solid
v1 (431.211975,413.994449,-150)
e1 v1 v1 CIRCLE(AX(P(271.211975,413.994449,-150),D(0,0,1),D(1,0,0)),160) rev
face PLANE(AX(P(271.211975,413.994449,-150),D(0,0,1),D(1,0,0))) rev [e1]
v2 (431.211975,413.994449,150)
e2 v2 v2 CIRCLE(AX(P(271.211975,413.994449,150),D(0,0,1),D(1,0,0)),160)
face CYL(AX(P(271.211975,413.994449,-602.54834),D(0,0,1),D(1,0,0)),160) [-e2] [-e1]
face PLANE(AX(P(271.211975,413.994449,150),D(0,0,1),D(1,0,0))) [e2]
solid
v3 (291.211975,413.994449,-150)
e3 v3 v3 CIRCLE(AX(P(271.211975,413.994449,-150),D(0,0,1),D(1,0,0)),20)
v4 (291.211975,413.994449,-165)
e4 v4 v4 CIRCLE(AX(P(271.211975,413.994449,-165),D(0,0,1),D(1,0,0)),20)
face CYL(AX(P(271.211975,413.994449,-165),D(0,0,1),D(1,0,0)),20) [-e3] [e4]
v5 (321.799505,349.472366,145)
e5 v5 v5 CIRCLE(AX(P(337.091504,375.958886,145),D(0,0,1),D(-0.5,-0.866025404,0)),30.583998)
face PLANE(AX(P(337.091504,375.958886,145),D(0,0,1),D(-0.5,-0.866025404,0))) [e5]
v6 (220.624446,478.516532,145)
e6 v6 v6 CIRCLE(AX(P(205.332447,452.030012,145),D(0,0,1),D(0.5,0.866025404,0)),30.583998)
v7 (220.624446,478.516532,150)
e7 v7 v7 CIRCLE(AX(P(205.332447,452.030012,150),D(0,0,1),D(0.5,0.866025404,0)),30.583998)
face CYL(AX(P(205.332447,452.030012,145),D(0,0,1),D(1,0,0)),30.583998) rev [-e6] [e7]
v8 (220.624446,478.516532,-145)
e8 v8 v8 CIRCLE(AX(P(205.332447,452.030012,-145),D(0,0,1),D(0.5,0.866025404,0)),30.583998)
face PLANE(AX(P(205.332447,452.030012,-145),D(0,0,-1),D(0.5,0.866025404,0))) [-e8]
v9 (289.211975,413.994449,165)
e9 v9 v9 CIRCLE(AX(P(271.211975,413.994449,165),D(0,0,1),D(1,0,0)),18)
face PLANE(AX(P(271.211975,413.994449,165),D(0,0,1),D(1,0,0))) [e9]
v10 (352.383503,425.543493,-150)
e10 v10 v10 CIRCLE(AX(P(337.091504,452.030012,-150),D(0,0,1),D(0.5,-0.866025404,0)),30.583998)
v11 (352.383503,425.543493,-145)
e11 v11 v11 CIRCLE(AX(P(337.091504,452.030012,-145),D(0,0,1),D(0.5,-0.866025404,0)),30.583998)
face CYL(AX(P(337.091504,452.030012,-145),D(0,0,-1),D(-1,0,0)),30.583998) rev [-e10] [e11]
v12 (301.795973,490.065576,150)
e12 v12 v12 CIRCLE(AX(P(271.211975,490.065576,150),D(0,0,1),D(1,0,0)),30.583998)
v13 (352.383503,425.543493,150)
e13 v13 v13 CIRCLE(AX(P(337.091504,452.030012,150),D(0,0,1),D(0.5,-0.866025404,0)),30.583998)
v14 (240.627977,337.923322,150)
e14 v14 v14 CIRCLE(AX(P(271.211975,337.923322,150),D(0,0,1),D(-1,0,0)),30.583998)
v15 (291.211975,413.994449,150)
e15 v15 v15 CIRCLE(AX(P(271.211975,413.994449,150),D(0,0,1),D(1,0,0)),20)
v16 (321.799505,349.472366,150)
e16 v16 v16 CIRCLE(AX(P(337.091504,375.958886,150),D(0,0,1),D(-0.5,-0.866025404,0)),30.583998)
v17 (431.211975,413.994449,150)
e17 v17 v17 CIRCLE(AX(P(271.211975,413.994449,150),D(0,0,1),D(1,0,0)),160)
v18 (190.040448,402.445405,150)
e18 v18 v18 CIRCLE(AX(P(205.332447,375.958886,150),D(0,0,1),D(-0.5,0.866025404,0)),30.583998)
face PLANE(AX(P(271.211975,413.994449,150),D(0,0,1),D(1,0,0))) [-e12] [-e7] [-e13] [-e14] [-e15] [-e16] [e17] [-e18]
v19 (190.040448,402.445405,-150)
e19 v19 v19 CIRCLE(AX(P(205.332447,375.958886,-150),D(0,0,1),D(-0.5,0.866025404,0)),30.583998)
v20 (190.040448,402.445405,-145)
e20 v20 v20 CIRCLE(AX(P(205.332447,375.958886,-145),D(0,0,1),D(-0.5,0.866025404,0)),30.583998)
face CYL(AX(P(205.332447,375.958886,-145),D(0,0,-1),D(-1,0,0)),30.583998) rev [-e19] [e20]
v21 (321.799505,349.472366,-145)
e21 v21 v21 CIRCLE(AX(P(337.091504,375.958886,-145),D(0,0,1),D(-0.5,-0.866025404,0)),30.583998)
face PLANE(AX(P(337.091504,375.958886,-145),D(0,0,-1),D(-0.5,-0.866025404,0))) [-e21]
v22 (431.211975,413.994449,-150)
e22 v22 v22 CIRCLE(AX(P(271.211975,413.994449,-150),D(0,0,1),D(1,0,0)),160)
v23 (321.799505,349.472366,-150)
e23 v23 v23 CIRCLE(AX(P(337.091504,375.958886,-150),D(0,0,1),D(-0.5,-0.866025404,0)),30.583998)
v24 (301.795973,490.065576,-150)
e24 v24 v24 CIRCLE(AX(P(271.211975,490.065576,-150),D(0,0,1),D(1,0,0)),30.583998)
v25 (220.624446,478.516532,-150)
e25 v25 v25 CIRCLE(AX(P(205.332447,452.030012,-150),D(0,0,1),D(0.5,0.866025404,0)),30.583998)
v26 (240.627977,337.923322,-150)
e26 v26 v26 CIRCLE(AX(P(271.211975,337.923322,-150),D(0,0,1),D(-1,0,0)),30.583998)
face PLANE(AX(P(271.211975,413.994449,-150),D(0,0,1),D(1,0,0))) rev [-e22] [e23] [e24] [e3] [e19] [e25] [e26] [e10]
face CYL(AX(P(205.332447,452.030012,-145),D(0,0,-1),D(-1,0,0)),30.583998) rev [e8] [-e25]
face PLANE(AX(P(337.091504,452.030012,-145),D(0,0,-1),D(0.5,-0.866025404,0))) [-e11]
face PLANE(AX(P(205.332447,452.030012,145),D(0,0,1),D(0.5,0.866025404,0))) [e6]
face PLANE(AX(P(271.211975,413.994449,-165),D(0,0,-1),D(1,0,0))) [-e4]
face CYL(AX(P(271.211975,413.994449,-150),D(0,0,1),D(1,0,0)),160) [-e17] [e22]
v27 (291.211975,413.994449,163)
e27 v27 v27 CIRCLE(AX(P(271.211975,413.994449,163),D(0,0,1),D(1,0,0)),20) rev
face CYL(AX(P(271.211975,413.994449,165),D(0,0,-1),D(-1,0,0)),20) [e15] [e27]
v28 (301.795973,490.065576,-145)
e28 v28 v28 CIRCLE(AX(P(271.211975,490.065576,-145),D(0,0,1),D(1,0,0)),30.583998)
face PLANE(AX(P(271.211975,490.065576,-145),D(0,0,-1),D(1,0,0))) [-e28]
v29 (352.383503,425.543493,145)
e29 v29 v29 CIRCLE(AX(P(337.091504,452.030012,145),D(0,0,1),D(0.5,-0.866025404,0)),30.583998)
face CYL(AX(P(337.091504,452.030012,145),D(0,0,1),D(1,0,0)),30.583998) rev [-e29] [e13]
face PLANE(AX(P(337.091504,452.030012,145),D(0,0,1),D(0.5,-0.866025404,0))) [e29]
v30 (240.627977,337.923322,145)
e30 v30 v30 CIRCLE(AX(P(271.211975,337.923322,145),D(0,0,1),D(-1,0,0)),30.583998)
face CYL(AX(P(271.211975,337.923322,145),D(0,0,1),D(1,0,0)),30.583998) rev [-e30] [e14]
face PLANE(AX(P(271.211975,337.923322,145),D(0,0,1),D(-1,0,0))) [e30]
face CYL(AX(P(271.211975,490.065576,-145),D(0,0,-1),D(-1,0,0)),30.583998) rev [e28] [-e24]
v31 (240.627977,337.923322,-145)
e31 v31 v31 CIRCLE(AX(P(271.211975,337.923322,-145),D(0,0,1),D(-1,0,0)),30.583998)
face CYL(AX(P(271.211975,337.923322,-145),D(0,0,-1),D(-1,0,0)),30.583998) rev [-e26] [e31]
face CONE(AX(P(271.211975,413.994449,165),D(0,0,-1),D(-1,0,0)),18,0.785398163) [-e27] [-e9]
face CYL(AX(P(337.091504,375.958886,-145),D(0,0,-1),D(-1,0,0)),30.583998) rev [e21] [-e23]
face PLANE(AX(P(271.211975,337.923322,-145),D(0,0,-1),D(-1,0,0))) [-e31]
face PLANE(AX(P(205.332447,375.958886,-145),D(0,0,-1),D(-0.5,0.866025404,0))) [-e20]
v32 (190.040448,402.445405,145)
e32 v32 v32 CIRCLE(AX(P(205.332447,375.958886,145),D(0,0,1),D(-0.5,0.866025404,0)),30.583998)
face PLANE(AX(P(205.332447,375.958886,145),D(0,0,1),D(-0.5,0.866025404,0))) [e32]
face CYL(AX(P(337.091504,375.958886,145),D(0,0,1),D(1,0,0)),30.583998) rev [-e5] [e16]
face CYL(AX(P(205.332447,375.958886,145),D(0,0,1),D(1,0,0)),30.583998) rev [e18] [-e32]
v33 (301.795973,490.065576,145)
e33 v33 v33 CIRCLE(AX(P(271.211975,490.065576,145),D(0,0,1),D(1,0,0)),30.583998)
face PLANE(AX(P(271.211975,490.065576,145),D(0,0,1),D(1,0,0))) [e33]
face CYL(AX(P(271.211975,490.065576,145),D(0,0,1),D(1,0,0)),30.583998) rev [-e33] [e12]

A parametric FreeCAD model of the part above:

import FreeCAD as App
import Part
import Sketcher


def edges_at(feature, points):
    """Names of the edges that pass closest to the given points."""
    edges = feature.Shape.Edges
    near = lambda p: min(range(len(edges)), key=lambda i: edges[i].distToShape(Part.Vertex(*p))[0])
    return sorted({f"Edge{near(p) + 1}" for p in points})

doc = App.newDocument("Part")
params = doc.addObject("Spreadsheet::Sheet", "Params")
for row, (alias, value) in enumerate([
    ("sketch1_diameter", "320 mm"),
    ("pad1_length", "300 mm"),
    ("pocket1_length", "5 mm"),
    ("pocket2_length", "5 mm"),
    ("pocket3_length", "5 mm"),
    ("pocket4_length", "5 mm"),
    ("pocket5_length", "5 mm"),
    ("pocket6_length", "5 mm"),
    ("sketch8_diameter", "40 mm"),
    ("pad2_length", "15 mm"),
    ("chamfer_size", "2 mm"),
    ("sketch9_diameter", "320 mm"),
    ("pad3_length", "300 mm"),
], start=1):
    params.set(f"A{row}", alias)
    params.set(f"B{row}", "=" + value)
    params.setAlias(f"B{row}", alias)

body = doc.addObject("PartDesign::Body", "Body")

# Sketch on XY plane
sketch1 = body.newObject("Sketcher::SketchObject", "Sketch")
sketch1.AttachmentSupport = (doc.getObject("XY_Plane"), [""])
sketch1.MapMode = "FlatFace"
sketch1.addGeometry(Part.Circle(App.Vector(271, 414, 0), App.Vector(0, 0, 1), 160), False)
sketch1.addConstraint(Sketcher.Constraint("Diameter", 0, 320.0))
sketch1.addConstraint(Sketcher.Constraint("DistanceY", -1, 1, 0, 3, 413.994449))
sketch1.addConstraint(Sketcher.Constraint("DistanceX", -1, 1, 0, 3, 271.211975))
sketch1.setExpression("Constraints[0]", "Params.sketch1_diameter")
pad1 = body.newObject("PartDesign::Pad", "Pad")
pad1.Profile = sketch1
pad1.setExpression("Length", "Params.pad1_length")
pad1.Midplane = True

# Sketch on XY plane
sketch2 = body.newObject("Sketcher::SketchObject", "Sketch001")
sketch2.AttachmentSupport = (doc.getObject("XY_Plane"), [""])
sketch2.MapMode = "FlatFace"
sketch2.AttachmentOffset = App.Placement(App.Vector(0, 0, 150), App.Rotation())
sketch2.addGeometry(Part.Circle(App.Vector(271, 490, 0), App.Vector(0, 0, 1), 31), False)
sketch2.addConstraint(Sketcher.Constraint("Diameter", 0, 61.167996))
sketch2.addConstraint(Sketcher.Constraint("DistanceX", -1, 1, 0, 3, 271.211975))
sketch2.addConstraint(Sketcher.Constraint("DistanceY", -1, 1, 0, 3, 490.065576))
pocket1 = body.newObject("PartDesign::Pocket", "Pocket")
pocket1.Profile = sketch2
pocket1.setExpression("Length", "Params.pocket1_length")
doc.recompute()

datumline = body.newObject("PartDesign::Line", "DatumLine")
datumline.Placement = App.Placement(App.Vector(271.211975, 413.994449, 0), App.Rotation(App.Vector(0, 0, 1), App.Vector(0, 0, 1)))
polarpattern = body.newObject("PartDesign::PolarPattern", "PolarPattern")
polarpattern.Originals = [pocket1]
polarpattern.Axis = (datumline, [""])
polarpattern.Angle = 360
polarpattern.Occurrences = 6
body.Tip = polarpattern
doc.recompute()

mirrored = body.newObject("PartDesign::Mirrored", "Mirrored")
mirrored.Originals = [pocket1]
mirrored.MirrorPlane = (doc.getObject("XY_Plane"), [""])
body.Tip = mirrored

# Sketch on XY plane
sketch3 = body.newObject("Sketcher::SketchObject", "Sketch002")
sketch3.AttachmentSupport = (doc.getObject("XY_Plane"), [""])
sketch3.MapMode = "FlatFace"
sketch3.AttachmentOffset = App.Placement(App.Vector(0, 0, -150), App.Rotation())
sketch3.addGeometry(Part.Circle(App.Vector(205, 452, 0), App.Vector(0, 0, 1), 31), False)
sketch3.addConstraint(Sketcher.Constraint("Diameter", 0, 61.167996))
sketch3.addConstraint(Sketcher.Constraint("DistanceX", -1, 1, 0, 3, 205.332447))
sketch3.addConstraint(Sketcher.Constraint("DistanceY", -1, 1, 0, 3, 452.030013))
pocket2 = body.newObject("PartDesign::Pocket", "Pocket001")
pocket2.Profile = sketch3
pocket2.setExpression("Length", "Params.pocket2_length")
pocket2.Reversed = True

# Sketch on XY plane
sketch4 = body.newObject("Sketcher::SketchObject", "Sketch003")
sketch4.AttachmentSupport = (doc.getObject("XY_Plane"), [""])
sketch4.MapMode = "FlatFace"
sketch4.AttachmentOffset = App.Placement(App.Vector(0, 0, -150), App.Rotation())
sketch4.addGeometry(Part.Circle(App.Vector(205, 376, 0), App.Vector(0, 0, 1), 31), False)
sketch4.addConstraint(Sketcher.Constraint("Diameter", 0, 61.167996))
sketch4.addConstraint(Sketcher.Constraint("DistanceX", -1, 1, 0, 3, 205.332447))
sketch4.addConstraint(Sketcher.Constraint("DistanceY", -1, 1, 0, 3, 375.958886))
pocket3 = body.newObject("PartDesign::Pocket", "Pocket002")
pocket3.Profile = sketch4
pocket3.setExpression("Length", "Params.pocket3_length")
pocket3.Reversed = True

# Sketch on XY plane
sketch5 = body.newObject("Sketcher::SketchObject", "Sketch004")
sketch5.AttachmentSupport = (doc.getObject("XY_Plane"), [""])
sketch5.MapMode = "FlatFace"
sketch5.AttachmentOffset = App.Placement(App.Vector(0, 0, -150), App.Rotation())
sketch5.addGeometry(Part.Circle(App.Vector(271, 338, 0), App.Vector(0, 0, 1), 31), False)
sketch5.addConstraint(Sketcher.Constraint("Diameter", 0, 61.167996))
sketch5.addConstraint(Sketcher.Constraint("DistanceX", -1, 1, 0, 3, 271.211975))
sketch5.addConstraint(Sketcher.Constraint("DistanceY", -1, 1, 0, 3, 337.923322))
pocket4 = body.newObject("PartDesign::Pocket", "Pocket003")
pocket4.Profile = sketch5
pocket4.setExpression("Length", "Params.pocket4_length")
pocket4.Reversed = True

# Sketch on XY plane
sketch6 = body.newObject("Sketcher::SketchObject", "Sketch005")
sketch6.AttachmentSupport = (doc.getObject("XY_Plane"), [""])
sketch6.MapMode = "FlatFace"
sketch6.AttachmentOffset = App.Placement(App.Vector(0, 0, -150), App.Rotation())
sketch6.addGeometry(Part.Circle(App.Vector(337, 376, 0), App.Vector(0, 0, 1), 31), False)
sketch6.addConstraint(Sketcher.Constraint("Diameter", 0, 61.167996))
sketch6.addConstraint(Sketcher.Constraint("DistanceX", -1, 1, 0, 3, 337.091504))
sketch6.addConstraint(Sketcher.Constraint("DistanceY", -1, 1, 0, 3, 375.958886))
pocket5 = body.newObject("PartDesign::Pocket", "Pocket004")
pocket5.Profile = sketch6
pocket5.setExpression("Length", "Params.pocket5_length")
pocket5.Reversed = True

# Sketch on XY plane
sketch7 = body.newObject("Sketcher::SketchObject", "Sketch006")
sketch7.AttachmentSupport = (doc.getObject("XY_Plane"), [""])
sketch7.MapMode = "FlatFace"
sketch7.AttachmentOffset = App.Placement(App.Vector(0, 0, -150), App.Rotation())
sketch7.addGeometry(Part.Circle(App.Vector(337, 452, 0), App.Vector(0, 0, 1), 31), False)
sketch7.addConstraint(Sketcher.Constraint("Diameter", 0, 61.167996))
sketch7.addConstraint(Sketcher.Constraint("DistanceX", -1, 1, 0, 3, 337.091504))
sketch7.addConstraint(Sketcher.Constraint("DistanceY", -1, 1, 0, 3, 452.030012))
pocket6 = body.newObject("PartDesign::Pocket", "Pocket005")
pocket6.Profile = sketch7
pocket6.setExpression("Length", "Params.pocket6_length")
pocket6.Reversed = True

# Sketch on XY plane
sketch8 = body.newObject("Sketcher::SketchObject", "Sketch007")
sketch8.AttachmentSupport = (doc.getObject("XY_Plane"), [""])
sketch8.MapMode = "FlatFace"
sketch8.AttachmentOffset = App.Placement(App.Vector(0, 0, 150), App.Rotation())
sketch8.addGeometry(Part.Circle(App.Vector(271, 414, 0), App.Vector(0, 0, 1), 20), False)
sketch8.addConstraint(Sketcher.Constraint("Diameter", 0, 40.0))
sketch8.addConstraint(Sketcher.Constraint("DistanceY", -1, 1, 0, 3, 413.994449))
sketch8.addConstraint(Sketcher.Constraint("DistanceX", -1, 1, 0, 3, 271.211975))
sketch8.setExpression("Constraints[0]", "Params.sketch8_diameter")
pad2 = body.newObject("PartDesign::Pad", "Pad001")
pad2.Profile = sketch8
pad2.setExpression("Length", "Params.pad2_length")
doc.recompute()

chamfer = body.newObject("PartDesign::Chamfer", "Chamfer")
chamfer.Base = (pad2, edges_at(pad2, [(251.212, 413.994, 165)]))
chamfer.setExpression("Size", "Params.chamfer_size")
doc.recompute()

mirrored2 = body.newObject("PartDesign::Mirrored", "Mirrored001")
mirrored2.Originals = [pad2]
mirrored2.MirrorPlane = (doc.getObject("XY_Plane"), [""])
body.Tip = mirrored2
body2 = doc.addObject("PartDesign::Body", "Body001")

# Sketch on XY plane
sketch9 = body2.newObject("Sketcher::SketchObject", "Sketch008")
sketch9.AttachmentSupport = (doc.getObject("XY_Plane001"), [""])
sketch9.MapMode = "FlatFace"
sketch9.AttachmentOffset = App.Placement(App.Vector(0, 0, 150), App.Rotation())
sketch9.addGeometry(Part.Circle(App.Vector(271, 414, 0), App.Vector(0, 0, 1), 160), False)
sketch9.addConstraint(Sketcher.Constraint("Diameter", 0, 320.0))
sketch9.addConstraint(Sketcher.Constraint("DistanceY", -1, 1, 0, 3, 413.994449))
sketch9.addConstraint(Sketcher.Constraint("DistanceX", -1, 1, 0, 3, 271.211975))
sketch9.setExpression("Constraints[0]", "Params.sketch9_diameter")
pad3 = body2.newObject("PartDesign::Pad", "Pad002")
pad3.Profile = sketch9
pad3.setExpression("Length", "Params.pad3_length")
pad3.Reversed = True

doc.recompute()
